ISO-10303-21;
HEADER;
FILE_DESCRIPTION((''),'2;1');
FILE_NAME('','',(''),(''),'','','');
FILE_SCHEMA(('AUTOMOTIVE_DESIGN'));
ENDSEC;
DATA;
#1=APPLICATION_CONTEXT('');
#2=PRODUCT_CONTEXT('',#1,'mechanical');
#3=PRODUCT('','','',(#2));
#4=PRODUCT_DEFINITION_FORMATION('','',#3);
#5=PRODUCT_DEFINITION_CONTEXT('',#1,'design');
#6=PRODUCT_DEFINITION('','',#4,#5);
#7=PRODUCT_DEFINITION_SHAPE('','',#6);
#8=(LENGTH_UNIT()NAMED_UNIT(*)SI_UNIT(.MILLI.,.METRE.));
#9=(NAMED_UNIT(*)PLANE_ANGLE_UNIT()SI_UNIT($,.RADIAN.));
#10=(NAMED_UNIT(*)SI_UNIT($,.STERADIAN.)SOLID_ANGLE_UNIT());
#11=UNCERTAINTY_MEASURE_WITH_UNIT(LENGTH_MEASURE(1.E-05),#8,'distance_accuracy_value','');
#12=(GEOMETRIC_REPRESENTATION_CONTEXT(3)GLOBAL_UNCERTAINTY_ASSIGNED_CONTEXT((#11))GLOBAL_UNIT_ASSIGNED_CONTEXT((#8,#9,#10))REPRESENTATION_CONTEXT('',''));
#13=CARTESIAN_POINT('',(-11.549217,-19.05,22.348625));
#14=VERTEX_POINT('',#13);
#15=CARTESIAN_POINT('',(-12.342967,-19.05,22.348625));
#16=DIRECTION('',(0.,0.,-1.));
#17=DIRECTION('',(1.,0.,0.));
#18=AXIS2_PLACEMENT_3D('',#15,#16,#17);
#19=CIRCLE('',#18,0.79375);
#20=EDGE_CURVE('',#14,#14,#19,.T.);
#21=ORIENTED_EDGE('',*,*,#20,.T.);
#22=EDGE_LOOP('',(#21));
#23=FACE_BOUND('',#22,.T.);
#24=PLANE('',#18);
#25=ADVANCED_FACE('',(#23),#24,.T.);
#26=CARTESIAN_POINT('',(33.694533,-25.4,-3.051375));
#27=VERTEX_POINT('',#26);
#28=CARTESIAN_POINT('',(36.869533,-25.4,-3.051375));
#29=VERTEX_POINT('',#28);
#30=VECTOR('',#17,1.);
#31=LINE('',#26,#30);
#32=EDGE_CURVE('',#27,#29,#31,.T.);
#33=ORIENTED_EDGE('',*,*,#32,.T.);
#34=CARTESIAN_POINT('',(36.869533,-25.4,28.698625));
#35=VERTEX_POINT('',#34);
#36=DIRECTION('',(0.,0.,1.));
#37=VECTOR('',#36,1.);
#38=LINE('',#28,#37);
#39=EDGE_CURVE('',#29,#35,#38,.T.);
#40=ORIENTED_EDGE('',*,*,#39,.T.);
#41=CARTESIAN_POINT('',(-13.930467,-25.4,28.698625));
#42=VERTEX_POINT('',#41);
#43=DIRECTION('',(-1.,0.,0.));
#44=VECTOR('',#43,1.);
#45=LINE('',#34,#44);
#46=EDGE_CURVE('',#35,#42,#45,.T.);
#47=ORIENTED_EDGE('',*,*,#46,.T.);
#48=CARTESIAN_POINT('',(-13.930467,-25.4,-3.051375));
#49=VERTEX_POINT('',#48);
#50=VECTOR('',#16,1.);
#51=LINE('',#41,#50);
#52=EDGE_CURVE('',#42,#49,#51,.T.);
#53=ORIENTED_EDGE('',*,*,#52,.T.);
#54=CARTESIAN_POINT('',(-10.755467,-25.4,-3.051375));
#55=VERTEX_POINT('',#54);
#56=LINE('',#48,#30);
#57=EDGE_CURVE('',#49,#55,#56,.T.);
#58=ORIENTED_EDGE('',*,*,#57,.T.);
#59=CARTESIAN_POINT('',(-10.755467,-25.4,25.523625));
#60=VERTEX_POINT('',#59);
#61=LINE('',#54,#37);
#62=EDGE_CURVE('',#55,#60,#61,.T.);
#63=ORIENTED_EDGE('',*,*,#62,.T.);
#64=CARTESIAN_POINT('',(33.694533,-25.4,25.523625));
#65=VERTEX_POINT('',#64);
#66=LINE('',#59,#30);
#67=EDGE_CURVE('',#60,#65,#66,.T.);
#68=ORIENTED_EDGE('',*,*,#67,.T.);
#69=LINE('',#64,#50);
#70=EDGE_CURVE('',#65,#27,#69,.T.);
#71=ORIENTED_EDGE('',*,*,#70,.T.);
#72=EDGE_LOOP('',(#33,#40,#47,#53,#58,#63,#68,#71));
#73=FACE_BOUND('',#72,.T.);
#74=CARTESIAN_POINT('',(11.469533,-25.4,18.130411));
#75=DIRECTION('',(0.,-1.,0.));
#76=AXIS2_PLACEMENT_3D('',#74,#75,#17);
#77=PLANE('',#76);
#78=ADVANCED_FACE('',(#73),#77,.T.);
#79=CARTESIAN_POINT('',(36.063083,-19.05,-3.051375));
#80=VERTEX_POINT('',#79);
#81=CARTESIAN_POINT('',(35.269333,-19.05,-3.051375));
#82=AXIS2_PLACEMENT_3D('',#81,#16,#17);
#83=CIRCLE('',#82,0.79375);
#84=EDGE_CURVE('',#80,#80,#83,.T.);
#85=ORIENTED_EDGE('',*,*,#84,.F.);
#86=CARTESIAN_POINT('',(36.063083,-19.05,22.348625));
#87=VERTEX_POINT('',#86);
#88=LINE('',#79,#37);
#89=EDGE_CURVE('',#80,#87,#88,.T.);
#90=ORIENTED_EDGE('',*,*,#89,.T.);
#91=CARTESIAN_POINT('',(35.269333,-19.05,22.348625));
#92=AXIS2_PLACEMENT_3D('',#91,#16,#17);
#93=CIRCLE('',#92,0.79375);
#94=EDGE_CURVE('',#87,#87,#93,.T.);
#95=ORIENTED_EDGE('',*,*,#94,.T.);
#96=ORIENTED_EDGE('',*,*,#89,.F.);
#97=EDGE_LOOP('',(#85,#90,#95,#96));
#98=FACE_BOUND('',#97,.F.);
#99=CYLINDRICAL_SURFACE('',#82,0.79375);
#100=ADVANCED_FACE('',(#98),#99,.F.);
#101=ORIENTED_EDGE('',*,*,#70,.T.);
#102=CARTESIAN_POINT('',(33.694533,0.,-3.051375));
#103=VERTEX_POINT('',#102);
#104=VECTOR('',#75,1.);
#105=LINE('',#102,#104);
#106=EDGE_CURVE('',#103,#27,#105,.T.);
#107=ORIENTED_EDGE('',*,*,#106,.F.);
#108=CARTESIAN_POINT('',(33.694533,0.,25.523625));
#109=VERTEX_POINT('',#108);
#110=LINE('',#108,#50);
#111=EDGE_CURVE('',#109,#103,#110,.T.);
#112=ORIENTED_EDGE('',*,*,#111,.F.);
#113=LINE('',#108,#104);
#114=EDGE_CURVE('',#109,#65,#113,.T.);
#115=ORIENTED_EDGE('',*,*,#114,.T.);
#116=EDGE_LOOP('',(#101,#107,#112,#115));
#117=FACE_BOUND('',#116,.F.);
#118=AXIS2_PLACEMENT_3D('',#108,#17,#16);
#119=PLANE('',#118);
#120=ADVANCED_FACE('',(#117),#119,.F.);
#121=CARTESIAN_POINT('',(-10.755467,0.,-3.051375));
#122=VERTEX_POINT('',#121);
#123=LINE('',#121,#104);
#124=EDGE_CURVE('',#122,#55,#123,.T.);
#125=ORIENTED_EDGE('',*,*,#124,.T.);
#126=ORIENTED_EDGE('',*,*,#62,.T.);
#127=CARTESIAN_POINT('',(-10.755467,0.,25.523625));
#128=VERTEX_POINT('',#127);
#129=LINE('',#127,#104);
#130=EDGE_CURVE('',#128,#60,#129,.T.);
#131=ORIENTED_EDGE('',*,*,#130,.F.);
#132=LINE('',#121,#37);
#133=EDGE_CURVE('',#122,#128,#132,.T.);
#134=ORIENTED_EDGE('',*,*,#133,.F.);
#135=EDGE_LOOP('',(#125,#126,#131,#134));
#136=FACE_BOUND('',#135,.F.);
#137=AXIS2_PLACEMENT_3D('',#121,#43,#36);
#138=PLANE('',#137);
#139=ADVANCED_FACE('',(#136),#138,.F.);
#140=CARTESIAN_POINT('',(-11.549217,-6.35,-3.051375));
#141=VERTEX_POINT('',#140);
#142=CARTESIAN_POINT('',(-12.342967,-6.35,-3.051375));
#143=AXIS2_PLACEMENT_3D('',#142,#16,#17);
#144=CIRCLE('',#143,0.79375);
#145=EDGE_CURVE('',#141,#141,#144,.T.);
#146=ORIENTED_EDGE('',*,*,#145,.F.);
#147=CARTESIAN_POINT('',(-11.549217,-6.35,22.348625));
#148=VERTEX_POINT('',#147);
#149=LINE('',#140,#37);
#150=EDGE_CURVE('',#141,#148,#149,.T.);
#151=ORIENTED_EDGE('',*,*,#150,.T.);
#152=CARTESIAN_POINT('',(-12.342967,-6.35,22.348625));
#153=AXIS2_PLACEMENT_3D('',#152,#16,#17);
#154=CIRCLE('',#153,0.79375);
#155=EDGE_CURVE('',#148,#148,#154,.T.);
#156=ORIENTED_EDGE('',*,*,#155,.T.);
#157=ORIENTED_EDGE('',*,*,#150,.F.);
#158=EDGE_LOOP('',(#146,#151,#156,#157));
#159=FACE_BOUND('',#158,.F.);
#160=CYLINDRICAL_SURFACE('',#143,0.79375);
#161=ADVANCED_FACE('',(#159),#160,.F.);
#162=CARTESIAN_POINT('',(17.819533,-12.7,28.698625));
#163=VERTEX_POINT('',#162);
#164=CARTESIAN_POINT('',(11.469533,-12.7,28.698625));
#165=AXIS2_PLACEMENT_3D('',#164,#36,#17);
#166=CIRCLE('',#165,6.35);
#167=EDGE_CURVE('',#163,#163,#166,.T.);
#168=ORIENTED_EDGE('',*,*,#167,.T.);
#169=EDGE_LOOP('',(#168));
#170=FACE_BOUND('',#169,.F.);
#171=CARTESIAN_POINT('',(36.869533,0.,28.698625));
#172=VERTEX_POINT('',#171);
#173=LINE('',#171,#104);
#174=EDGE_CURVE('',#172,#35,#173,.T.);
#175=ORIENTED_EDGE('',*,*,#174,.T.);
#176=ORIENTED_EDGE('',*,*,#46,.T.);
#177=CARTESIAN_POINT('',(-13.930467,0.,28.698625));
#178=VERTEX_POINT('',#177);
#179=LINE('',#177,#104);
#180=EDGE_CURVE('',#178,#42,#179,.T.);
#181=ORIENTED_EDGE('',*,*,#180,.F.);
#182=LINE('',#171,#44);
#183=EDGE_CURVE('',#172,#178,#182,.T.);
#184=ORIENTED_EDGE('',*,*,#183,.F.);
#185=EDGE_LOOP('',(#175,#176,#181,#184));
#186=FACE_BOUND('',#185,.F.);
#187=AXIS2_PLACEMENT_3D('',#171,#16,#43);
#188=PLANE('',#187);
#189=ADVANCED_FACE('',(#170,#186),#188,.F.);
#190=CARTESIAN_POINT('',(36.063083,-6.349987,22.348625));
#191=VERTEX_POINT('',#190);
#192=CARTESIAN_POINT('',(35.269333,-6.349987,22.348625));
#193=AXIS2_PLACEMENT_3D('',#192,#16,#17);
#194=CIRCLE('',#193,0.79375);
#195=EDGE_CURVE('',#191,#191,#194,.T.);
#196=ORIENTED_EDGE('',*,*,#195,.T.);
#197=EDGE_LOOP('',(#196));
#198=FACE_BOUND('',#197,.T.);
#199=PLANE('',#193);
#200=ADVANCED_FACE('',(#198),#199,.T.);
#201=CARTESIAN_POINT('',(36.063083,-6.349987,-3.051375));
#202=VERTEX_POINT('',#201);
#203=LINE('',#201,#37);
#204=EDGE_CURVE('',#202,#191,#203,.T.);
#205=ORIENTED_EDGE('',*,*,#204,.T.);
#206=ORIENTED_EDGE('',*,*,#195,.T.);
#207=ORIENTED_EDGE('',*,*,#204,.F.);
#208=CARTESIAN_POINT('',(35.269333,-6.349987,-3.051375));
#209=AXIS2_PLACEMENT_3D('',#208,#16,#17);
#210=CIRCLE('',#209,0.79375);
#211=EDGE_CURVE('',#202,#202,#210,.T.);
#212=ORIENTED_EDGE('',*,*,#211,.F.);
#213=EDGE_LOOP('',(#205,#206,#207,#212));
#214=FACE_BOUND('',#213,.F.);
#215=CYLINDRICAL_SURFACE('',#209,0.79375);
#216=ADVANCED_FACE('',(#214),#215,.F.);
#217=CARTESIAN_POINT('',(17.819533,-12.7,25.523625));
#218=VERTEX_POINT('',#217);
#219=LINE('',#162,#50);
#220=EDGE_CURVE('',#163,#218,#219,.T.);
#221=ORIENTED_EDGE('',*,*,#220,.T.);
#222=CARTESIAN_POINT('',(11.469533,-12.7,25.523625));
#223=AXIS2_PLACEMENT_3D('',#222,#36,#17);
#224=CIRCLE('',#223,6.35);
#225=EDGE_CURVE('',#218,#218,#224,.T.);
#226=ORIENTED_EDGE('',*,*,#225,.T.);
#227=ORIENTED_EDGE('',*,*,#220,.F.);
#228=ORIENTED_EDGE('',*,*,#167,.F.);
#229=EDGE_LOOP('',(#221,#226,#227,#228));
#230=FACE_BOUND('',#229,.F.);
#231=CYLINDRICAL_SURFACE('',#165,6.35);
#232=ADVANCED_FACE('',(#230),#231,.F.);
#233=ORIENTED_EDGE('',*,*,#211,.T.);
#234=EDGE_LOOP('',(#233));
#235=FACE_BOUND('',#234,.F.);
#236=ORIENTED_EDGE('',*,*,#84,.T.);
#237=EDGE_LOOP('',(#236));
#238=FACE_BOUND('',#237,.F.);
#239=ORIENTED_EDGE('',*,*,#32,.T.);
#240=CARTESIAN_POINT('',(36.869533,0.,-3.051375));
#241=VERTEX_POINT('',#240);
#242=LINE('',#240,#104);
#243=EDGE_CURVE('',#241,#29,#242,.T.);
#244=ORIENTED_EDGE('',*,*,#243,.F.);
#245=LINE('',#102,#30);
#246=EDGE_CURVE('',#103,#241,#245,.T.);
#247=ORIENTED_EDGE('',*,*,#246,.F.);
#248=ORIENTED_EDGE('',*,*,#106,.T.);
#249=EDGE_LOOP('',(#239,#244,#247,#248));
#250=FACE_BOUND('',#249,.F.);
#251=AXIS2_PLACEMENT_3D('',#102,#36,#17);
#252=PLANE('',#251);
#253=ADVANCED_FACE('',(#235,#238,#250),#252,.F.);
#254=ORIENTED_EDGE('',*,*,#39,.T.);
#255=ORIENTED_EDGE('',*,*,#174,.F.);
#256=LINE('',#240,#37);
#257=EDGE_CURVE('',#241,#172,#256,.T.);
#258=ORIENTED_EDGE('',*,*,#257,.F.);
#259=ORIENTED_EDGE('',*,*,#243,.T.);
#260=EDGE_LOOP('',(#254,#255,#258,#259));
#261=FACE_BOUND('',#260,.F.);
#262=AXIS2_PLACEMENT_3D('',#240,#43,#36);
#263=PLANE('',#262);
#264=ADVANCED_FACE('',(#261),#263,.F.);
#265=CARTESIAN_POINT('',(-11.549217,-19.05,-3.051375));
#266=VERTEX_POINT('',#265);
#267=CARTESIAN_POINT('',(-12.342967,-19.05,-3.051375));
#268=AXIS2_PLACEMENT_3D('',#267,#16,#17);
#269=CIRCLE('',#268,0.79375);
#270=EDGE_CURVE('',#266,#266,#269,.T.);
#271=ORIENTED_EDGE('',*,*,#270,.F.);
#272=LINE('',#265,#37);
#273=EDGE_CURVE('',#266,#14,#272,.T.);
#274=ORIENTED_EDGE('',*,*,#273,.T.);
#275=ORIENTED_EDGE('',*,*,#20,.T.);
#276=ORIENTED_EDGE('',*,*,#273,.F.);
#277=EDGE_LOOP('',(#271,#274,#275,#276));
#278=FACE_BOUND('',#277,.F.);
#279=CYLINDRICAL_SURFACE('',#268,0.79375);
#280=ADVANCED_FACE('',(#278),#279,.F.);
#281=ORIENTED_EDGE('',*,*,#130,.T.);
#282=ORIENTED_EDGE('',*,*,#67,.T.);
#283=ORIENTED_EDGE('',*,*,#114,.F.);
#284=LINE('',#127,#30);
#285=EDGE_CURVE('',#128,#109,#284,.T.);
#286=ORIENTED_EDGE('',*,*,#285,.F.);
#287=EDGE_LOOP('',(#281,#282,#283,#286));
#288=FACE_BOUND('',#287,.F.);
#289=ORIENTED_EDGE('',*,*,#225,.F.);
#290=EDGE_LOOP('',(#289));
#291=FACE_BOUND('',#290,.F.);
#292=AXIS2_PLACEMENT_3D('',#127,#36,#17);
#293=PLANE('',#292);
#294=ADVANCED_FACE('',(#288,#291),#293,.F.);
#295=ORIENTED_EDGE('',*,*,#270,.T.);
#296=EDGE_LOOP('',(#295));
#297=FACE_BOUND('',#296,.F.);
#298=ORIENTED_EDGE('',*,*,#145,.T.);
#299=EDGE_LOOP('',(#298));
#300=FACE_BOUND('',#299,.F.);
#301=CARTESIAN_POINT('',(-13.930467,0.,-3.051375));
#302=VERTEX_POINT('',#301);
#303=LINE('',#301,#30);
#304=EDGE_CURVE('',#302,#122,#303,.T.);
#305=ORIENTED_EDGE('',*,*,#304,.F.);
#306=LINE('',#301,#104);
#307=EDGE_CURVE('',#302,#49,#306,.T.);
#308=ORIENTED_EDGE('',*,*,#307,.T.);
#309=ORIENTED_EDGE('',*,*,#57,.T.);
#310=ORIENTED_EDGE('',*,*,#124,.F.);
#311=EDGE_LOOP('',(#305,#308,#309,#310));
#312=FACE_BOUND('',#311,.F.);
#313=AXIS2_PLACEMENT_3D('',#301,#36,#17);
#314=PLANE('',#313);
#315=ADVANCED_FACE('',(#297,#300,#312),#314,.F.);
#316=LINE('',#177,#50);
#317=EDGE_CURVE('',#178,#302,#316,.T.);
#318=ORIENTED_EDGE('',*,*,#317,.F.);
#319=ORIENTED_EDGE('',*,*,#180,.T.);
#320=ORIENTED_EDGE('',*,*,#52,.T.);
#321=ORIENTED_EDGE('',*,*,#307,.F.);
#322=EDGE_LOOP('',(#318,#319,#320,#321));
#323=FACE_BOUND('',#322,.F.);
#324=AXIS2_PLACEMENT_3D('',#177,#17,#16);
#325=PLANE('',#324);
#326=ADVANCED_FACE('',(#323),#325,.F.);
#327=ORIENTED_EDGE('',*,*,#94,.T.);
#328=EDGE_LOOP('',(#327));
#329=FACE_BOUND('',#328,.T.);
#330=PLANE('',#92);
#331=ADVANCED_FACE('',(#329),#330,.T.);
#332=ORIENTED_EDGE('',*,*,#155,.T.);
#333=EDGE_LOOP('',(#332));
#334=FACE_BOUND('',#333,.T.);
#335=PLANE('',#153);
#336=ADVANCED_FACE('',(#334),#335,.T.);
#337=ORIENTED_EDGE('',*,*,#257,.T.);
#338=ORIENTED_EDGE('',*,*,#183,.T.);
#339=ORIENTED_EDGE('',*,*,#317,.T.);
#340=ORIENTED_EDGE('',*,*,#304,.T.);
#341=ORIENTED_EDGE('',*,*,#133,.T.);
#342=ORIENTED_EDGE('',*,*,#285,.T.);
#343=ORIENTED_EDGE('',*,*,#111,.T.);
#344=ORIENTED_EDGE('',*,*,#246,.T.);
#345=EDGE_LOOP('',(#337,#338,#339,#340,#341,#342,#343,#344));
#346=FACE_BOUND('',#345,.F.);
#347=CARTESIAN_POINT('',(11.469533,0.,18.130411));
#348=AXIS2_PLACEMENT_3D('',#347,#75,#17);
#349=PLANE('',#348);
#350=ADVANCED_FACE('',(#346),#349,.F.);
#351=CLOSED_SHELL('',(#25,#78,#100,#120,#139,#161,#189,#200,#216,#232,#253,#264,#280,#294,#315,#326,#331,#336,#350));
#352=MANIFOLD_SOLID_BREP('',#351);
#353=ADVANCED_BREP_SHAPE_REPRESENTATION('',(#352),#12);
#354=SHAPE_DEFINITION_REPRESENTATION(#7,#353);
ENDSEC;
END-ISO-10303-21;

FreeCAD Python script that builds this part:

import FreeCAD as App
import Part
import Sketcher
from FreeCAD import Vector
Q = App.Units.Quantity


def add_polygon(sketch, points):
    """Adds a closed chain of lines whose ends are joined by coincident constraints."""
    first, n = sketch.GeometryCount, len(points)
    for a, b in zip(points, points[1:] + points[:1]):
        sketch.addGeometry(Part.LineSegment(App.Vector(*a, 0), App.Vector(*b, 0)), False)
    for i in range(n):
        sketch.addConstraint(Sketcher.Constraint("Coincident", first + i, 2, first + (i + 1) % n, 1))

doc = App.newDocument("Part")
body = doc.addObject("PartDesign::Body", "Body")

sketch1 = doc.addObject("Sketcher::SketchObject", "Sketch")
body.addObject(sketch1)
sketch1.AttachmentSupport = (doc.XZ_Plane, [""])
sketch1.MapMode = "FlatFace"
add_polygon(sketch1, [(-13.9, 28.7), (-13.9, -3.1), (-10.8, -3.1), (-10.8, 25.5), (33.7, 25.5), (33.7, -3.1), (36.9, -3.1), (36.9, 28.7)])
sketch1.addConstraint(Sketcher.Constraint("Vertical", 0))
sketch1.addConstraint(Sketcher.Constraint("Horizontal", 1))
sketch1.addConstraint(Sketcher.Constraint("Vertical", 2))
sketch1.addConstraint(Sketcher.Constraint("Horizontal", 3))
sketch1.addConstraint(Sketcher.Constraint("Vertical", 4))
sketch1.addConstraint(Sketcher.Constraint("Horizontal", 5))
sketch1.addConstraint(Sketcher.Constraint("Vertical", 6))
sketch1.addConstraint(Sketcher.Constraint("Horizontal", 7))
sketch1.addConstraint(Sketcher.Constraint("Horizontal", 1, 2, 4, 2))
sketch1.addConstraint(Sketcher.Constraint("Equal", 1, 5))
sketch1.addConstraint(Sketcher.Constraint("DistanceX", 7, 2, 7, 1, Q("2 in")))
sketch1.addConstraint(Sketcher.Constraint("DistanceX", 3, 1, 3, 2, Q("1.75 in")))
sketch1.addConstraint(Sketcher.Constraint("DistanceY", 0, 2, 0, 1, Q("1.25 in")))
sketch1.addConstraint(Sketcher.Constraint("DistanceY", 2, 1, 2, 2, Q("1.125 in")))
sketch1.addConstraint(Sketcher.Constraint("DistanceX", 0, 2, -1, 1, 13.930467))
sketch1.addConstraint(Sketcher.Constraint("DistanceY", 0, 2, -1, 1, 3.051375))
pad1 = doc.addObject("PartDesign::Pad", "Pad")
body.addObject(pad1)
pad1.Profile = sketch1
pad1.Length = Q("1 in")

sketch2 = doc.addObject("Sketcher::SketchObject", "Sketch001")
body.addObject(sketch2)
sketch2.AttachmentSupport = (doc.XY_Plane, [""])
sketch2.MapMode = "FlatFace"
sketch2.AttachmentOffset = App.Placement(Vector(0, 0, 28.698625), App.Rotation())
sketch2.addGeometry(Part.Circle(Vector(11, -13, 0), Vector(0, 0, 1), 6), False)
sketch2.addConstraint(Sketcher.Constraint("Diameter", 0, Q("0.5 in")))
sketch2.addConstraint(Sketcher.Constraint("DistanceY", 0, 3, -1, 1, Q("0.5 in")))
sketch2.addConstraint(Sketcher.Constraint("DistanceX", -1, 1, 0, 3, 11.469533))
pocket1 = doc.addObject("PartDesign::Pocket", "Pocket")
body.addObject(pocket1)
pocket1.Profile = sketch2
pocket1.Length = Q("1 in")

sketch3 = doc.addObject("Sketcher::SketchObject", "Sketch002")
body.addObject(sketch3)
sketch3.AttachmentSupport = (doc.XY_Plane, [""])
sketch3.MapMode = "FlatFace"
sketch3.AttachmentOffset = App.Placement(Vector(0, 0, -3.051375), App.Rotation())
sketch3.addGeometry(Part.Circle(Vector(-12.3, -19.1, 0), Vector(0, 0, 1), 0.8), False)
sketch3.addGeometry(Part.Circle(Vector(-12.3, -6.3, 0), Vector(0, 0, 1), 0.8), False)
sketch3.addConstraint(Sketcher.Constraint("Equal", 0, 1))
sketch3.addConstraint(Sketcher.Constraint("Vertical", 0, 3, 1, 3))
sketch3.addConstraint(Sketcher.Constraint("Diameter", 0, Q("0.0625 in")))
sketch3.addConstraint(Sketcher.Constraint("DistanceY", 0, 3, 1, 3, Q("0.5 in")))
sketch3.addConstraint(Sketcher.Constraint("DistanceY", 0, 3, -1, 1, Q("0.75 in")))
sketch3.addConstraint(Sketcher.Constraint("DistanceX", 0, 3, -1, 1, 12.342967))
pocket2 = doc.addObject("PartDesign::Pocket", "Pocket001")
body.addObject(pocket2)
pocket2.Profile = sketch3
pocket2.Length = Q("1 in")
pocket2.Reversed = True

sketch4 = doc.addObject("Sketcher::SketchObject", "Sketch003")
body.addObject(sketch4)
sketch4.AttachmentSupport = (doc.XY_Plane, [""])
sketch4.MapMode = "FlatFace"
sketch4.AttachmentOffset = App.Placement(Vector(0, 0, -3.051375), App.Rotation())
sketch4.addGeometry(Part.Circle(Vector(35.3, -19.1, 0), Vector(0, 0, 1), 0.8), False)
sketch4.addGeometry(Part.Circle(Vector(35.3, -6.3, 0), Vector(0, 0, 1), 0.8), False)
sketch4.addConstraint(Sketcher.Constraint("Equal", 0, 1))
sketch4.addConstraint(Sketcher.Constraint("Vertical", 0, 3, 1, 3))
sketch4.addConstraint(Sketcher.Constraint("Diameter", 0, Q("0.0625 in")))
sketch4.addConstraint(Sketcher.Constraint("DistanceY", 0, 3, -1, 1, Q("0.75 in")))
sketch4.addConstraint(Sketcher.Constraint("DistanceX", -1, 1, 0, 3, 35.269333))
sketch4.addConstraint(Sketcher.Constraint("DistanceY", 1, 3, -1, 1, 6.349987))
pocket3 = doc.addObject("PartDesign::Pocket", "Pocket002")
body.addObject(pocket3)
pocket3.Profile = sketch4
pocket3.Length = Q("1 in")
pocket3.Reversed = True

doc.recompute()
